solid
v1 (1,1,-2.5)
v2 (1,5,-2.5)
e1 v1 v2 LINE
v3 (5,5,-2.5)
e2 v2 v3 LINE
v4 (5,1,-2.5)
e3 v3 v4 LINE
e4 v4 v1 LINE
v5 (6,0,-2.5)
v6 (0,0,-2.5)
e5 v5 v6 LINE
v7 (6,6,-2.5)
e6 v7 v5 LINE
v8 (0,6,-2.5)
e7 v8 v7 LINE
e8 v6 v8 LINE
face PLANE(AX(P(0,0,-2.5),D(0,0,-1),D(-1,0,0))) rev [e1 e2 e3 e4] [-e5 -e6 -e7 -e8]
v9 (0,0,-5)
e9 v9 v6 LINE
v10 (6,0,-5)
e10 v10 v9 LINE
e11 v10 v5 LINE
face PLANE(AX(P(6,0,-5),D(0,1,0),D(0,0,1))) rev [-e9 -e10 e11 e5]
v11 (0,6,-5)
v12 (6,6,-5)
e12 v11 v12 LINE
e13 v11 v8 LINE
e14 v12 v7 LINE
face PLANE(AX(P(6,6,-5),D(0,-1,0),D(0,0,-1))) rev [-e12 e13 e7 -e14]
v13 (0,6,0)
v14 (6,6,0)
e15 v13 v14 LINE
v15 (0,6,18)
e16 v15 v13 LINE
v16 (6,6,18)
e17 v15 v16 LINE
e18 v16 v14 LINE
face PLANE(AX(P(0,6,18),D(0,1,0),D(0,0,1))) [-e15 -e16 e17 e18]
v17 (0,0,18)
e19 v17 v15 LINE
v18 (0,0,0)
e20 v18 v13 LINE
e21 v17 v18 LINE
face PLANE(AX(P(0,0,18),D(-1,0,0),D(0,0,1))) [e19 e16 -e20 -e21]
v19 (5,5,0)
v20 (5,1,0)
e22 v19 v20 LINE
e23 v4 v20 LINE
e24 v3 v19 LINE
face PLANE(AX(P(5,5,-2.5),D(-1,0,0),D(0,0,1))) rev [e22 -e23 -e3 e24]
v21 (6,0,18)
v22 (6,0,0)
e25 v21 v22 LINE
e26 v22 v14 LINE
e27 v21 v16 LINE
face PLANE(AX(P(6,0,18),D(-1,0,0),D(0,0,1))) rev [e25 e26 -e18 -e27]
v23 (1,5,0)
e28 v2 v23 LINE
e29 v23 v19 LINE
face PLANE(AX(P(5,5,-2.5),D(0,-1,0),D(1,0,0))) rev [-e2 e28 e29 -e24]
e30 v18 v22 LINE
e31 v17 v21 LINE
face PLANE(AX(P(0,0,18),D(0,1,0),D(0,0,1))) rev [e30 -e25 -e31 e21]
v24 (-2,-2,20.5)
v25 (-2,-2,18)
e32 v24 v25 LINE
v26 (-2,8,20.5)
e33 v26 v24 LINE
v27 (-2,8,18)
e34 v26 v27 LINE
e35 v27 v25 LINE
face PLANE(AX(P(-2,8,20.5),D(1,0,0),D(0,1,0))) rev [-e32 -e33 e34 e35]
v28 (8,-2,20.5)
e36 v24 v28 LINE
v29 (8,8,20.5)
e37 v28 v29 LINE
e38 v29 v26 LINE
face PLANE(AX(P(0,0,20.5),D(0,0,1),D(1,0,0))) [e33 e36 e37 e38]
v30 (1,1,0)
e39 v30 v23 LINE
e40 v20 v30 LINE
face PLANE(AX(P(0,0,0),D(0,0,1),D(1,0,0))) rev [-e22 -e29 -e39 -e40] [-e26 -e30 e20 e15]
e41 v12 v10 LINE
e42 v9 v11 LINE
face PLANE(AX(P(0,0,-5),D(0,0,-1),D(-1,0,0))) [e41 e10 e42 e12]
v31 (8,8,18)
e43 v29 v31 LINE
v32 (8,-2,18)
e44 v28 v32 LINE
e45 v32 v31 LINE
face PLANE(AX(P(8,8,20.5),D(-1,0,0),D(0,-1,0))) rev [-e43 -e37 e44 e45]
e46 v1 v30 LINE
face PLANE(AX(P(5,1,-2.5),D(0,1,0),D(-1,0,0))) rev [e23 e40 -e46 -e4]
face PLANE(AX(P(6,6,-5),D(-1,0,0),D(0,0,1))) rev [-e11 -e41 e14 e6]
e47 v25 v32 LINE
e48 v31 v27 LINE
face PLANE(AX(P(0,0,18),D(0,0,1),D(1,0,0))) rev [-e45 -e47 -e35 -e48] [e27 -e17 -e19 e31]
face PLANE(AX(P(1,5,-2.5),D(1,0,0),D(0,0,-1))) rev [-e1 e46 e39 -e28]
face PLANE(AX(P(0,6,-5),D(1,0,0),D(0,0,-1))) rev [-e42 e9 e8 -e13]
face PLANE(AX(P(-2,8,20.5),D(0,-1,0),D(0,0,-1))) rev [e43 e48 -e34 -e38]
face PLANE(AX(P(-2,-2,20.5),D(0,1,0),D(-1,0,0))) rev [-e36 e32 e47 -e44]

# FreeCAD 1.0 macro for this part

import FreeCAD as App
import Part
import Sketcher

V = App.Vector

doc = App.newDocument("Part")
params = doc.addObject("Spreadsheet::Sheet", "Params")
for row, (alias, value) in enumerate([
    ("sketch1_width", "6 mm"),
    ("pad1_length", "18 mm"),
    ("sketch2_width", "10 mm"),
    ("pad2_length", "2.5 mm"),
    ("sketch3_width", "4 mm"),
    ("pad3_length", "2.5 mm"),
    ("sketch4_width", "6 mm"),
    ("pad4_length", "2.5 mm"),
], start=1):
    params.set(f"A{row}", alias)
    params.set(f"B{row}", "=" + value)
    params.setAlias(f"B{row}", alias)

body = doc.addObject("PartDesign::Body", "Body")

sketch1 = body.newObject("Sketcher::SketchObject", "Sketch")
sketch1.AttachmentSupport = (doc.getObject("XY_Plane"), [""])
sketch1.MapMode = "FlatFace"
sketch1.addGeometry(Part.LineSegment(V(0, 6, 0), V(0, 0, 0)), False)
sketch1.addGeometry(Part.LineSegment(V(0, 0, 0), V(6, 0, 0)), False)
sketch1.addGeometry(Part.LineSegment(V(6, 0, 0), V(6, 6, 0)), False)
sketch1.addGeometry(Part.LineSegment(V(6, 6, 0), V(0, 6, 0)), False)
sketch1.addConstraint(Sketcher.Constraint("Coincident", 0, 2, 1, 1))
sketch1.addConstraint(Sketcher.Constraint("Coincident", 1, 2, 2, 1))
sketch1.addConstraint(Sketcher.Constraint("Coincident", 2, 2, 3, 1))
sketch1.addConstraint(Sketcher.Constraint("Coincident", 3, 2, 0, 1))
sketch1.addConstraint(Sketcher.Constraint("Vertical", 0))
sketch1.addConstraint(Sketcher.Constraint("Horizontal", 1))
sketch1.addConstraint(Sketcher.Constraint("Vertical", 2))
sketch1.addConstraint(Sketcher.Constraint("Horizontal", 3))
sketch1.addConstraint(Sketcher.Constraint("Coincident", 0, 2, -1, 1))
sketch1.addConstraint(Sketcher.Constraint("Equal", 3, 0))
sketch1.addConstraint(Sketcher.Constraint("DistanceX", 1, 1, 1, 2, 6.0))
sketch1.setExpression("Constraints[10]", "Params.sketch1_width")
pad1 = body.newObject("PartDesign::Pad", "Pad")
pad1.Profile = sketch1
pad1.setExpression("Length", "Params.pad1_length")

sketch2 = body.newObject("Sketcher::SketchObject", "Sketch001")
sketch2.AttachmentSupport = (doc.getObject("XY_Plane"), [""])
sketch2.MapMode = "FlatFace"
sketch2.AttachmentOffset = App.Placement(V(0, 0, 18), App.Rotation())
sketch2.addGeometry(Part.LineSegment(V(-2, 8, 0), V(-2, -2, 0)), False)
sketch2.addGeometry(Part.LineSegment(V(-2, -2, 0), V(8, -2, 0)), False)
sketch2.addGeometry(Part.LineSegment(V(8, -2, 0), V(8, 8, 0)), False)
sketch2.addGeometry(Part.LineSegment(V(8, 8, 0), V(-2, 8, 0)), False)
sketch2.addConstraint(Sketcher.Constraint("Coincident", 0, 2, 1, 1))
sketch2.addConstraint(Sketcher.Constraint("Coincident", 1, 2, 2, 1))
sketch2.addConstraint(Sketcher.Constraint("Coincident", 2, 2, 3, 1))
sketch2.addConstraint(Sketcher.Constraint("Coincident", 3, 2, 0, 1))
sketch2.addConstraint(Sketcher.Constraint("Vertical", 0))
sketch2.addConstraint(Sketcher.Constraint("Horizontal", 1))
sketch2.addConstraint(Sketcher.Constraint("Vertical", 2))
sketch2.addConstraint(Sketcher.Constraint("Horizontal", 3))
sketch2.addConstraint(Sketcher.Constraint("Equal", 3, 0))
sketch2.addConstraint(Sketcher.Constraint("DistanceX", 1, 1, 1, 2, 10.0))
sketch2.addConstraint(Sketcher.Constraint("DistanceX", 0, 2, -1, 1, 2.0))
sketch2.addConstraint(Sketcher.Constraint("DistanceY", 0, 2, -1, 1, 2.0))
sketch2.setExpression("Constraints[9]", "Params.sketch2_width")
pad2 = body.newObject("PartDesign::Pad", "Pad001")
pad2.Profile = sketch2
pad2.setExpression("Length", "Params.pad2_length")

sketch3 = body.newObject("Sketcher::SketchObject", "Sketch002")
sketch3.AttachmentSupport = (doc.getObject("XY_Plane"), [""])
sketch3.MapMode = "FlatFace"
sketch3.addGeometry(Part.LineSegment(V(5, 5, 0), V(5, 1, 0)), False)
sketch3.addGeometry(Part.LineSegment(V(5, 1, 0), V(1, 1, 0)), False)
sketch3.addGeometry(Part.LineSegment(V(1, 1, 0), V(1, 5, 0)), False)
sketch3.addGeometry(Part.LineSegment(V(1, 5, 0), V(5, 5, 0)), False)
sketch3.addConstraint(Sketcher.Constraint("Coincident", 0, 2, 1, 1))
sketch3.addConstraint(Sketcher.Constraint("Coincident", 1, 2, 2, 1))
sketch3.addConstraint(Sketcher.Constraint("Coincident", 2, 2, 3, 1))
sketch3.addConstraint(Sketcher.Constraint("Coincident", 3, 2, 0, 1))
sketch3.addConstraint(Sketcher.Constraint("Vertical", 0))
sketch3.addConstraint(Sketcher.Constraint("Horizontal", 1))
sketch3.addConstraint(Sketcher.Constraint("Vertical", 2))
sketch3.addConstraint(Sketcher.Constraint("Horizontal", 3))
sketch3.addConstraint(Sketcher.Constraint("Equal", 3, 0))
sketch3.addConstraint(Sketcher.Constraint("DistanceX", 1, 2, 1, 1, 4.0))
sketch3.addConstraint(Sketcher.Constraint("DistanceX", -1, 1, 0, 2, 5.0))
sketch3.addConstraint(Sketcher.Constraint("DistanceY", -1, 1, 0, 2, 1.0))
sketch3.setExpression("Constraints[9]", "Params.sketch3_width")
pad3 = body.newObject("PartDesign::Pad", "Pad002")
pad3.Profile = sketch3
pad3.setExpression("Length", "Params.pad3_length")
pad3.Reversed = True

sketch4 = body.newObject("Sketcher::SketchObject", "Sketch003")
sketch4.AttachmentSupport = (doc.getObject("XY_Plane"), [""])
sketch4.MapMode = "FlatFace"
sketch4.AttachmentOffset = App.Placement(V(0, 0, -2.5), App.Rotation())
sketch4.addGeometry(Part.LineSegment(V(6, 6, 0), V(6, 0, 0)), False)
sketch4.addGeometry(Part.LineSegment(V(6, 0, 0), V(0, 0, 0)), False)
sketch4.addGeometry(Part.LineSegment(V(0, 0, 0), V(0, 6, 0)), False)
sketch4.addGeometry(Part.LineSegment(V(0, 6, 0), V(6, 6, 0)), False)
sketch4.addConstraint(Sketcher.Constraint("Coincident", 0, 2, 1, 1))
sketch4.addConstraint(Sketcher.Constraint("Coincident", 1, 2, 2, 1))
sketch4.addConstraint(Sketcher.Constraint("Coincident", 2, 2, 3, 1))
sketch4.addConstraint(Sketcher.Constraint("Coincident", 3, 2, 0, 1))
sketch4.addConstraint(Sketcher.Constraint("Vertical", 0))
sketch4.addConstraint(Sketcher.Constraint("Horizontal", 1))
sketch4.addConstraint(Sketcher.Constraint("Vertical", 2))
sketch4.addConstraint(Sketcher.Constraint("Horizontal", 3))
sketch4.addConstraint(Sketcher.Constraint("Coincident", 1, 2, -1, 1))
sketch4.addConstraint(Sketcher.Constraint("Equal", 3, 0))
sketch4.addConstraint(Sketcher.Constraint("DistanceX", 1, 2, 1, 1, 6.0))
sketch4.setExpression("Constraints[10]", "Params.sketch4_width")
pad4 = body.newObject("PartDesign::Pad", "Pad003")
pad4.Profile = sketch4
pad4.setExpression("Length", "Params.pad4_length")
pad4.Reversed = True

doc.recompute()
